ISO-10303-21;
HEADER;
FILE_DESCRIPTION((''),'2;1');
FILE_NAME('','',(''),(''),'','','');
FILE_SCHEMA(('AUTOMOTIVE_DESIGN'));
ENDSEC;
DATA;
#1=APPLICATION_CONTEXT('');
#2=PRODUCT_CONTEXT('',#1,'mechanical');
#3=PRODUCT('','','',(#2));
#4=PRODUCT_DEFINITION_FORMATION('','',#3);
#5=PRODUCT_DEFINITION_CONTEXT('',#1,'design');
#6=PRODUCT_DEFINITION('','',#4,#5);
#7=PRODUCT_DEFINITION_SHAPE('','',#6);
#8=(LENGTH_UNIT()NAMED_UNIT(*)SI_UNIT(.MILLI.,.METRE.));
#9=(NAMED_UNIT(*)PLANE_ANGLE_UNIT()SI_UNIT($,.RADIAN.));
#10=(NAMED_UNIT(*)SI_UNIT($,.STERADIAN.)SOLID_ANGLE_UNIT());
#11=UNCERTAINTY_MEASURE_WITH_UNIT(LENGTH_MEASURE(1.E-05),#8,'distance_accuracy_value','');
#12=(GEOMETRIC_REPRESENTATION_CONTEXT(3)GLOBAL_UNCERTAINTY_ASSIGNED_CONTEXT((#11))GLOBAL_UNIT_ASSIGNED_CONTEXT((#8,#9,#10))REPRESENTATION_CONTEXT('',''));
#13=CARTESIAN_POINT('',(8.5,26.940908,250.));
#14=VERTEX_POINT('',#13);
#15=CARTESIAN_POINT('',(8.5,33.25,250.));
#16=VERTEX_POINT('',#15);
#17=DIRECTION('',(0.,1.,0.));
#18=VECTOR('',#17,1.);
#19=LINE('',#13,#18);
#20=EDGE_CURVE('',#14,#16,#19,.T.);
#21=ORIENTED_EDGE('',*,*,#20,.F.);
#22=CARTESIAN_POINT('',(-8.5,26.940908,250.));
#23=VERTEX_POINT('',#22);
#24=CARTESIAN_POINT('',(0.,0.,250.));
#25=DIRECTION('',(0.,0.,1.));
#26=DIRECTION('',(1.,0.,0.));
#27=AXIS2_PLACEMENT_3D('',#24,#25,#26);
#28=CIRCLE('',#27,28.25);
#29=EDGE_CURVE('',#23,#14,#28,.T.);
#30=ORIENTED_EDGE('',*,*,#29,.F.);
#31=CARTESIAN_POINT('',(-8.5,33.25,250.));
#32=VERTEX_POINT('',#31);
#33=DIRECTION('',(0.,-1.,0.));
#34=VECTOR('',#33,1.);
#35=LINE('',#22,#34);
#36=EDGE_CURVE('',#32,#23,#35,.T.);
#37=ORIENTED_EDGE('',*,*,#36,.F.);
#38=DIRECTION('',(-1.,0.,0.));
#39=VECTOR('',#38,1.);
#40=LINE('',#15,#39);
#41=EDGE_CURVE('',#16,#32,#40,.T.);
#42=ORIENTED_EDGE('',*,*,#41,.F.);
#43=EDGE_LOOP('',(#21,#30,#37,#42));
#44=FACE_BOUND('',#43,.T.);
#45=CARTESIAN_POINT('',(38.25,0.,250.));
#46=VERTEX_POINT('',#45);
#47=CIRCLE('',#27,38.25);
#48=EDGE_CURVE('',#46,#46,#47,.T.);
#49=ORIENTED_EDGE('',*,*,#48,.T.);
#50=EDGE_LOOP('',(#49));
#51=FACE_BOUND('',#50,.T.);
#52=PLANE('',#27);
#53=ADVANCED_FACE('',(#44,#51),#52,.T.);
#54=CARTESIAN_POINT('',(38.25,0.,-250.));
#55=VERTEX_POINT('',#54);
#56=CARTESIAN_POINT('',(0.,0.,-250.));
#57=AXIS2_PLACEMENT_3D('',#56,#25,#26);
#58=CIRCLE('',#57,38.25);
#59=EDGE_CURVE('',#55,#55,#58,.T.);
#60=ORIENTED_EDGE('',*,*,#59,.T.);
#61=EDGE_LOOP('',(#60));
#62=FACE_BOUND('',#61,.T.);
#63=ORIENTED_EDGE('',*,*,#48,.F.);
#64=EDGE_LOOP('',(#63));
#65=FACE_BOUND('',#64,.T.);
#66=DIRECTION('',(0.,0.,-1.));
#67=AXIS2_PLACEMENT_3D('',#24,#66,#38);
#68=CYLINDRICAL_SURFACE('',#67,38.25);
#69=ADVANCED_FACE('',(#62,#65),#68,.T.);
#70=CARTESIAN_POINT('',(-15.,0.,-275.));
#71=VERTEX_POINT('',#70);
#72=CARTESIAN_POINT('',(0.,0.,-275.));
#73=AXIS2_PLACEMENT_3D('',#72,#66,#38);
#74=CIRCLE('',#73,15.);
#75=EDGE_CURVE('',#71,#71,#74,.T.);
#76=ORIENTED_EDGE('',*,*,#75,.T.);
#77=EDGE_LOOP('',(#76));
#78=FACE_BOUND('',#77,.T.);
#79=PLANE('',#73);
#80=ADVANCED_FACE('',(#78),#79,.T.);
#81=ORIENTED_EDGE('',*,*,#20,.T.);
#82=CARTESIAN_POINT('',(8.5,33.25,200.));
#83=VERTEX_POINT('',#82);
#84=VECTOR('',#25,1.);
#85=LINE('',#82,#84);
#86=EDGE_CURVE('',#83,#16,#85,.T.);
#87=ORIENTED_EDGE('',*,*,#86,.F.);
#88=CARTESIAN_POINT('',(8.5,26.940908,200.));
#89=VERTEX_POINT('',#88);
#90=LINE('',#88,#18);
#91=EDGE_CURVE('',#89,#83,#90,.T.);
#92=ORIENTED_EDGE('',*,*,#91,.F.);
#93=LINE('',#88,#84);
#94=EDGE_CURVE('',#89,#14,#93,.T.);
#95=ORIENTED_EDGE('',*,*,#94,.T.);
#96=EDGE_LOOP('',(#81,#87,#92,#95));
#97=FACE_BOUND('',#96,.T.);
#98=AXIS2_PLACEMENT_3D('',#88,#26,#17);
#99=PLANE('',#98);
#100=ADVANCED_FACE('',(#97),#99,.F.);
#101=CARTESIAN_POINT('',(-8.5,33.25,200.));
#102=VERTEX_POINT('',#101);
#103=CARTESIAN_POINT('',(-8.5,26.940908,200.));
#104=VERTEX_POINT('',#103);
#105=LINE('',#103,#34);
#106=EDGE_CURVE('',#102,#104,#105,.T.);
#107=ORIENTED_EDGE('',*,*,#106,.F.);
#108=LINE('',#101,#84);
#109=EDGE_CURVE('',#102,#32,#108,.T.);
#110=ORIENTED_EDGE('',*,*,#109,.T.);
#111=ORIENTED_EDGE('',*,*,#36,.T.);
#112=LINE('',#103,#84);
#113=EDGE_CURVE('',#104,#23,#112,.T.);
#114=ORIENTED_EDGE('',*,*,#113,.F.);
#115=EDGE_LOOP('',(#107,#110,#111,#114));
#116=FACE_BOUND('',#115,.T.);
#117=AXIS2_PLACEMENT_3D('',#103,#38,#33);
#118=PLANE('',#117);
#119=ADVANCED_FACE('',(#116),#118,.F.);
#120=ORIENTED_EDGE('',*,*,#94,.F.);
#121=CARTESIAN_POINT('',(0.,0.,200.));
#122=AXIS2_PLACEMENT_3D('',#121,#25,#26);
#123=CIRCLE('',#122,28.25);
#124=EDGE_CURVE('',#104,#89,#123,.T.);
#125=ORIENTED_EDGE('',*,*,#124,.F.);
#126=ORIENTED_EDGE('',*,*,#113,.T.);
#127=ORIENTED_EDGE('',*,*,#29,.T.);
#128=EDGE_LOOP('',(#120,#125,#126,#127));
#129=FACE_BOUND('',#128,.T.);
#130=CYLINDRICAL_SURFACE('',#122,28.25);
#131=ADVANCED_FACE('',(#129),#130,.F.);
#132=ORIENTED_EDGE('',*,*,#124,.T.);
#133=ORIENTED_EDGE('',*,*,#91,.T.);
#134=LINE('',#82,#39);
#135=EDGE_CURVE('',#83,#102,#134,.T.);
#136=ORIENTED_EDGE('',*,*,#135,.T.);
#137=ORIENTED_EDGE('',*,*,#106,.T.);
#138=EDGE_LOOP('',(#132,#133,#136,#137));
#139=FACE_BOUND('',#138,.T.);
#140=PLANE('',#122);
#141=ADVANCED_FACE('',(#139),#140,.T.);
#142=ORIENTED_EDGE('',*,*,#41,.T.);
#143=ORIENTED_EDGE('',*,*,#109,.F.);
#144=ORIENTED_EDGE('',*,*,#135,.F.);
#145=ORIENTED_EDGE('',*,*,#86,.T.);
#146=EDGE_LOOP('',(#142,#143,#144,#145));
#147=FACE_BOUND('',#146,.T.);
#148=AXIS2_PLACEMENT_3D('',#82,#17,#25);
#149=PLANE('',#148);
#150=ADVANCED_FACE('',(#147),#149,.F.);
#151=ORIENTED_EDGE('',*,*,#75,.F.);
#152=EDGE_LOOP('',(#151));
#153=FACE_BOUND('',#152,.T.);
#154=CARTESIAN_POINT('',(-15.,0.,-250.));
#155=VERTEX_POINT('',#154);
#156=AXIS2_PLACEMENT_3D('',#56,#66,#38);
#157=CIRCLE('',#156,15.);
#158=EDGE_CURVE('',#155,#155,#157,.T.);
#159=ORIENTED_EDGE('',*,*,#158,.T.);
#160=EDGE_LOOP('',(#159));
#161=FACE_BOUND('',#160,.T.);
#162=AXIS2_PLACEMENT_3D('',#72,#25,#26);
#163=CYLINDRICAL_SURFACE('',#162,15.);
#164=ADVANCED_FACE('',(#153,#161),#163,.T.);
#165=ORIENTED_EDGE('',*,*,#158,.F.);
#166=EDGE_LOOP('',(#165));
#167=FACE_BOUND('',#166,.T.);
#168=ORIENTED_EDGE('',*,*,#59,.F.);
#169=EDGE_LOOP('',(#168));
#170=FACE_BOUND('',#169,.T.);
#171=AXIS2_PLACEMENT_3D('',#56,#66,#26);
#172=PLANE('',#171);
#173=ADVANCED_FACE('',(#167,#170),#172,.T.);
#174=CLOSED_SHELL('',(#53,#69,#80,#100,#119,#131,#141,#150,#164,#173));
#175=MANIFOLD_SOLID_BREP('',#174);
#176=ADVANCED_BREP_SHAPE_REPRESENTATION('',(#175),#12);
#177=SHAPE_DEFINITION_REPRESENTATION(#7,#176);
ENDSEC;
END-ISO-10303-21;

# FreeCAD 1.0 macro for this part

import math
import FreeCAD as App
import Part
import Sketcher

V = App.Vector

doc = App.newDocument("Part")
params = doc.addObject("Spreadsheet::Sheet", "Params")
for row, (alias, value) in enumerate([
    ("sketch1_diameter", "76.5 mm"),
    ("pad1_length", "250 mm"),
    ("sketch2_width", "17 mm"),
    ("sketch2_radius", "28.25 mm"),
    ("pocket1_length", "50 mm"),
    ("sketch3_diameter", "70 mm"),
    ("sketch3_diameter2", "30 mm"),
    ("pad2_length", "50 mm"),
    ("sketch4_diameter", "30 mm"),
    ("pad3_length", "75 mm"),
], start=1):
    params.set(f"A{row}", alias)
    params.set(f"B{row}", "=" + value)
    params.setAlias(f"B{row}", alias)

body = doc.addObject("PartDesign::Body", "Body")

sketch1 = body.newObject("Sketcher::SketchObject", "Sketch")
sketch1.AttachmentSupport = (doc.getObject("XY_Plane"), [""])
sketch1.MapMode = "FlatFace"
sketch1.addGeometry(Part.Circle(V(0, 0, 0), V(0, 0, 1), 38), False)
sketch1.addConstraint(Sketcher.Constraint("Coincident", 0, 3, -1, 1))
sketch1.addConstraint(Sketcher.Constraint("Diameter", 0, 76.5))
sketch1.setExpression("Constraints[1]", "Params.sketch1_diameter")
pad1 = body.newObject("PartDesign::Pad", "Pad")
pad1.Profile = sketch1
pad1.setExpression("Length", "Params.pad1_length")

sketch2 = body.newObject("Sketcher::SketchObject", "Sketch001")
sketch2.AttachmentSupport = (doc.getObject("XY_Plane"), [""])
sketch2.MapMode = "FlatFace"
sketch2.AttachmentOffset = App.Placement(V(0, 0, 250), App.Rotation())
sketch2.addGeometry(Part.LineSegment(V(-8, 33, 0), V(-8, 27, 0)), False)
sketch2.addGeometry(Part.ArcOfCircle(Part.Circle(V(0, 0, 0), V(0, 0, 1), 28), math.radians(108), math.radians(432)), False)
sketch2.addGeometry(Part.LineSegment(V(8, 27, 0), V(8, 33, 0)), False)
sketch2.addGeometry(Part.LineSegment(V(8, 33, 0), V(-8, 33, 0)), False)
sketch2.addConstraint(Sketcher.Constraint("Coincident", 0, 2, 1, 1))
sketch2.addConstraint(Sketcher.Constraint("Coincident", 1, 2, 2, 1))
sketch2.addConstraint(Sketcher.Constraint("Coincident", 2, 2, 3, 1))
sketch2.addConstraint(Sketcher.Constraint("Coincident", 3, 2, 0, 1))
sketch2.addConstraint(Sketcher.Constraint("Vertical", 0))
sketch2.addConstraint(Sketcher.Constraint("Vertical", 2))
sketch2.addConstraint(Sketcher.Constraint("Horizontal", 3))
sketch2.addConstraint(Sketcher.Constraint("Coincident", 1, 3, -1, 1))
sketch2.addConstraint(Sketcher.Constraint("Horizontal", 0, 2, 1, 2))
sketch2.addConstraint(Sketcher.Constraint("DistanceX", 3, 2, 3, 1, 17.0))
sketch2.addConstraint(Sketcher.Constraint("Radius", 1, 28.25))
sketch2.addConstraint(Sketcher.Constraint("DistanceY", -1, 1, 2, 2, 33.25))
sketch2.setExpression("Constraints[9]", "Params.sketch2_width")
sketch2.setExpression("Constraints[10]", "Params.sketch2_radius")
pocket1 = body.newObject("PartDesign::Pocket", "Pocket")
pocket1.Profile = sketch2
pocket1.setExpression("Length", "Params.pocket1_length")
doc.recompute()

mirrored = body.newObject("PartDesign::Mirrored", "Mirrored")
mirrored.Originals = [pad1, pocket1]
mirrored.MirrorPlane = (doc.getObject("XY_Plane"), [""])
body.Tip = mirrored

sketch3 = body.newObject("Sketcher::SketchObject", "Sketch002")
sketch3.AttachmentSupport = (doc.getObject("XY_Plane"), [""])
sketch3.MapMode = "FlatFace"
sketch3.AttachmentOffset = App.Placement(V(0, 0, -250), App.Rotation())
sketch3.addGeometry(Part.Circle(V(0, 0, 0), V(0, 0, 1), 35), False)
sketch3.addGeometry(Part.Circle(V(0, 0, 0), V(0, 0, 1), 15), False)
sketch3.addConstraint(Sketcher.Constraint("Coincident", 0, 3, -1, 1))
sketch3.addConstraint(Sketcher.Constraint("Coincident", 1, 3, -1, 1))
sketch3.addConstraint(Sketcher.Constraint("Diameter", 0, 70.0))
sketch3.addConstraint(Sketcher.Constraint("Diameter", 1, 30.0))
sketch3.setExpression("Constraints[2]", "Params.sketch3_diameter")
sketch3.setExpression("Constraints[3]", "Params.sketch3_diameter2")
pad2 = body.newObject("PartDesign::Pad", "Pad001")
pad2.Profile = sketch3
pad2.setExpression("Length", "Params.pad2_length")

sketch4 = body.newObject("Sketcher::SketchObject", "Sketch003")
sketch4.AttachmentSupport = (doc.getObject("XY_Plane"), [""])
sketch4.MapMode = "FlatFace"
sketch4.AttachmentOffset = App.Placement(V(0, 0, -275), App.Rotation())
sketch4.addGeometry(Part.Circle(V(0, 0, 0), V(0, 0, 1), 15), False)
sketch4.addConstraint(Sketcher.Constraint("Coincident", 0, 3, -1, 1))
sketch4.addConstraint(Sketcher.Constraint("Diameter", 0, 30.0))
sketch4.setExpression("Constraints[1]", "Params.sketch4_diameter")
pad3 = body.newObject("PartDesign::Pad", "Pad002")
pad3.Profile = sketch4
pad3.setExpression("Length", "Params.pad3_length")

doc.recompute()
